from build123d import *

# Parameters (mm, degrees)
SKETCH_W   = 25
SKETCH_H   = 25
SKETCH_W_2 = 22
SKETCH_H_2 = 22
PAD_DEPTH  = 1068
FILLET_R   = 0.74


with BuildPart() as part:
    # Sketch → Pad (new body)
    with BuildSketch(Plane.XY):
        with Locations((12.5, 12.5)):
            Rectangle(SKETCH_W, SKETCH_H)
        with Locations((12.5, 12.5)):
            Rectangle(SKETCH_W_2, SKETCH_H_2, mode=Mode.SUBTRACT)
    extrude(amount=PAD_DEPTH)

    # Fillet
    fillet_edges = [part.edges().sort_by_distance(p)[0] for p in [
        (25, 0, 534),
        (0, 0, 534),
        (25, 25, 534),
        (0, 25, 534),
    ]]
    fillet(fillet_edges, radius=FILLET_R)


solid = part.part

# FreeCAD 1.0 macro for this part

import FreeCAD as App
import Part
import Sketcher
from FreeCAD import Vector
Q = App.Units.Quantity


def edges_at(feature, points):
    """Names of the edges that pass closest to the given points."""
    edges = feature.Shape.Edges
    near = lambda p: min(range(len(edges)), key=lambda i: edges[i].distToShape(Part.Vertex(*p))[0])
    return sorted({f"Edge{near(p) + 1}" for p in points})

doc = App.newDocument("Part")
params = doc.addObject("Spreadsheet::Sheet", "Params")
for row, (alias, value) in enumerate([
    ("sketch1_width", "25 mm"),
    ("sketch1_width2", "22 mm"),
    ("pad1_length", "1068 mm"),
    ("fillet_radius", "0.74 mm"),
], start=1):
    params.set(f"A{row}", alias)
    params.set(f"B{row}", "=" + value)
    params.setAlias(f"B{row}", alias)

body = doc.addObject("PartDesign::Body", "Body")

sketch1 = body.newObject("Sketcher::SketchObject", "Sketch")
sketch1.AttachmentSupport = (doc.getObject("XY_Plane"), [""])
sketch1.MapMode = "FlatFace"
sketch1.addGeometry([
    Part.LineSegment(Vector(0, 25, 0), Vector(0, 0, 0)),
    Part.LineSegment(Vector(0, 0, 0), Vector(25, 0, 0)),
    Part.LineSegment(Vector(25, 0, 0), Vector(25, 25, 0)),
    Part.LineSegment(Vector(25, 25, 0), Vector(0, 25, 0)),
    Part.LineSegment(Vector(24, 2, 0), Vector(2, 2, 0)),
    Part.LineSegment(Vector(2, 2, 0), Vector(2, 24, 0)),
    Part.LineSegment(Vector(2, 24, 0), Vector(24, 24, 0)),
    Part.LineSegment(Vector(24, 24, 0), Vector(24, 2, 0)),
], False)
sketch1.addConstraint([
    Sketcher.Constraint("Coincident", 0, 2, 1, 1),
    Sketcher.Constraint("Coincident", 1, 2, 2, 1),
    Sketcher.Constraint("Coincident", 2, 2, 3, 1),
    Sketcher.Constraint("Coincident", 3, 2, 0, 1),
    Sketcher.Constraint("Coincident", 4, 2, 5, 1),
    Sketcher.Constraint("Coincident", 5, 2, 6, 1),
    Sketcher.Constraint("Coincident", 6, 2, 7, 1),
    Sketcher.Constraint("Coincident", 7, 2, 4, 1),
    Sketcher.Constraint("Vertical", 0),
    Sketcher.Constraint("Horizontal", 1),
    Sketcher.Constraint("Vertical", 2),
    Sketcher.Constraint("Horizontal", 3),
    Sketcher.Constraint("Horizontal", 4),
    Sketcher.Constraint("Vertical", 5),
    Sketcher.Constraint("Horizontal", 6),
    Sketcher.Constraint("Vertical", 7),
    Sketcher.Constraint("Coincident", 0, 2, -1, 1),
    Sketcher.Constraint("Equal", 3, 0),
    Sketcher.Constraint("Equal", 6, 5),
    Sketcher.Constraint("DistanceX", 1, 1, 1, 2, Q("25 mm")),
    Sketcher.Constraint("DistanceX", 4, 2, 4, 1, Q("22 mm")),
    Sketcher.Constraint("DistanceX", -1, 1, 4, 2, Q("1.5 mm")),
    Sketcher.Constraint("DistanceY", -1, 1, 4, 2, Q("1.5 mm")),
])
sketch1.setExpression("Constraints[19]", "Params.sketch1_width")
sketch1.setExpression("Constraints[20]", "Params.sketch1_width2")
pad1 = body.newObject("PartDesign::Pad", "Pad")
pad1.Profile = sketch1
pad1.setExpression("Length", "Params.pad1_length")
doc.recompute()

fillet = body.newObject("PartDesign::Fillet", "Fillet")
fillet.Base = (pad1, edges_at(pad1, [
    (25, 0, 534),
    (0, 0, 534),
    (25, 25, 534),
    (0, 25, 534),
]))
fillet.setExpression("Radius", "Params.fillet_radius")

doc.recompute()
